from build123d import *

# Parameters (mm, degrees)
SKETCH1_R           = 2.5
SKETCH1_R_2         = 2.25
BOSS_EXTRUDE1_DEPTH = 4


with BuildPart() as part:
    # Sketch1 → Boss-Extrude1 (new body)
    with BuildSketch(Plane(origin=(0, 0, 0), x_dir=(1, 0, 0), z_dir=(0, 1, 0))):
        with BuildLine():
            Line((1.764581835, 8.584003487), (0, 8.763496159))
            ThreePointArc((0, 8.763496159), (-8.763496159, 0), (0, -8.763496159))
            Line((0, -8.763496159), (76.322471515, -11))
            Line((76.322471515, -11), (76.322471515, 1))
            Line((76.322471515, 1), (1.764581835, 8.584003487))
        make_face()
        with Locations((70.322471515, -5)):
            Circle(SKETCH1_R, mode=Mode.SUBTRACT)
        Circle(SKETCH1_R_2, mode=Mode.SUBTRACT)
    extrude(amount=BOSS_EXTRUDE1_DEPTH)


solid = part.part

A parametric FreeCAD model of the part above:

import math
import FreeCAD as App
import Part
import Sketcher

V = App.Vector

doc = App.newDocument("Part")
body = doc.addObject("PartDesign::Body", "Body")

sketch1 = doc.addObject("Sketcher::SketchObject", "Sketch")
body.addObject(sketch1)
sketch1.AttachmentSupport = (doc.XZ_Plane, [""])
sketch1.MapMode = "FlatFace"
sketch1.addGeometry([
    Part.LineSegment(V(1.8, -8.6, 0), V(0, -8.8, 0)),
    Part.ArcOfCircle(Part.Circle(V(0, 0, 0), V(0, 0, 1), 8.8), math.radians(90), math.radians(270)),
    Part.LineSegment(V(0, 8.8, 0), V(76.3, 11, 0)),
    Part.LineSegment(V(76.3, 11, 0), V(76.3, -1, 0)),
    Part.LineSegment(V(76.3, -1, 0), V(1.8, -8.6, 0)),
    Part.Circle(V(70.3, 5, 0), V(0, 0, 1), 2.5),
    Part.Circle(V(0, 0, 0), V(0, 0, 1), 2.2),
], False)
sketch1.addConstraint([
    Sketcher.Constraint("Coincident", 0, 2, 1, 2),
    Sketcher.Constraint("Coincident", 1, 1, 2, 1),
    Sketcher.Constraint("Coincident", 2, 2, 3, 1),
    Sketcher.Constraint("Coincident", 3, 2, 4, 1),
    Sketcher.Constraint("Coincident", 4, 2, 0, 1),
    Sketcher.Constraint("Vertical", 3),
    Sketcher.Constraint("Coincident", 1, 3, -1, 1),
    Sketcher.Constraint("Coincident", 6, 3, -1, 1),
    Sketcher.Constraint("PointOnObject", 0, 2, -2),
    Sketcher.Constraint("PointOnObject", 1, 1, -2),
    Sketcher.Constraint("Parallel", 0, 4),
    Sketcher.Constraint("Diameter", 5, 5.0),
    Sketcher.Constraint("Diameter", 6, 4.5),
    Sketcher.Constraint("DistanceY", 3, 2, 3, 1, 12.0),
    Sketcher.Constraint("DistanceY", -1, 1, 5, 3, 5.0),
    Sketcher.Constraint("DistanceY", -1, 1, 2, 2, 11.0),
    Sketcher.Constraint("DistanceX", 5, 3, 2, 2, 6.0),
    Sketcher.Constraint("Radius", 1, 8.763496),
    Sketcher.Constraint("DistanceY", 4, 2, 1, 1, 17.3475),
    Sketcher.Constraint("Distance", 4, 74.942618),
])
pad1 = doc.addObject("PartDesign::Pad", "Pad")
body.addObject(pad1)
pad1.Profile = sketch1
pad1.Length = 4
pad1.Reversed = True

doc.recompute()
